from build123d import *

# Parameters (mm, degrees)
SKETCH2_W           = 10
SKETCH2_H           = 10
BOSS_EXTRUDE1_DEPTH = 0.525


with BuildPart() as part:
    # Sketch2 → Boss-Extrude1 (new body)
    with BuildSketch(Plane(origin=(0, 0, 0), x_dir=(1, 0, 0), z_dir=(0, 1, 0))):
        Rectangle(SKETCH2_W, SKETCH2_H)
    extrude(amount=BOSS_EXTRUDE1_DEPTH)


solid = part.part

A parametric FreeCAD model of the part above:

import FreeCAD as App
import Part
import Sketcher

V = App.Vector
Q = App.Units.Quantity

doc = App.newDocument("Part")
params = doc.addObject("Spreadsheet::Sheet", "Params")
for row, (alias, value) in enumerate([
    ("sketch1_width", "10 mm"),
    ("pad1_length", "0.525 mm"),
], start=1):
    params.set(f"A{row}", alias)
    params.set(f"B{row}", "=" + value)
    params.setAlias(f"B{row}", alias)

body = doc.addObject("PartDesign::Body", "Body")

# Sketch on XZ plane
sketch1 = body.newObject("Sketcher::SketchObject", "Sketch")
sketch1.AttachmentSupport = (doc.getObject("XZ_Plane"), [""])
sketch1.MapMode = "FlatFace"
sketch1.addGeometry([
    Part.LineSegment(V(-5, -5, 0), V(-5, 5, 0)),
    Part.LineSegment(V(-5, 5, 0), V(5, 5, 0)),
    Part.LineSegment(V(5, 5, 0), V(5, -5, 0)),
    Part.LineSegment(V(5, -5, 0), V(-5, -5, 0)),
], False)
sketch1.addConstraint([
    Sketcher.Constraint("Coincident", 0, 2, 1, 1),
    Sketcher.Constraint("Coincident", 1, 2, 2, 1),
    Sketcher.Constraint("Coincident", 2, 2, 3, 1),
    Sketcher.Constraint("Coincident", 3, 2, 0, 1),
    Sketcher.Constraint("Vertical", 0),
    Sketcher.Constraint("Horizontal", 1),
    Sketcher.Constraint("Vertical", 2),
    Sketcher.Constraint("Horizontal", 3),
    Sketcher.Constraint("Symmetric", 0, 2, 2, 2, -1, 1),
    Sketcher.Constraint("Equal", 3, 0),
    Sketcher.Constraint("DistanceX", 1, 1, 1, 2, Q("10 mm")),
])
sketch1.setExpression("Constraints[10]", "Params.sketch1_width")
pad1 = body.newObject("PartDesign::Pad", "Pad")
pad1.Profile = sketch1
pad1.setExpression("Length", "Params.pad1_length")
pad1.Reversed = True

doc.recompute()
